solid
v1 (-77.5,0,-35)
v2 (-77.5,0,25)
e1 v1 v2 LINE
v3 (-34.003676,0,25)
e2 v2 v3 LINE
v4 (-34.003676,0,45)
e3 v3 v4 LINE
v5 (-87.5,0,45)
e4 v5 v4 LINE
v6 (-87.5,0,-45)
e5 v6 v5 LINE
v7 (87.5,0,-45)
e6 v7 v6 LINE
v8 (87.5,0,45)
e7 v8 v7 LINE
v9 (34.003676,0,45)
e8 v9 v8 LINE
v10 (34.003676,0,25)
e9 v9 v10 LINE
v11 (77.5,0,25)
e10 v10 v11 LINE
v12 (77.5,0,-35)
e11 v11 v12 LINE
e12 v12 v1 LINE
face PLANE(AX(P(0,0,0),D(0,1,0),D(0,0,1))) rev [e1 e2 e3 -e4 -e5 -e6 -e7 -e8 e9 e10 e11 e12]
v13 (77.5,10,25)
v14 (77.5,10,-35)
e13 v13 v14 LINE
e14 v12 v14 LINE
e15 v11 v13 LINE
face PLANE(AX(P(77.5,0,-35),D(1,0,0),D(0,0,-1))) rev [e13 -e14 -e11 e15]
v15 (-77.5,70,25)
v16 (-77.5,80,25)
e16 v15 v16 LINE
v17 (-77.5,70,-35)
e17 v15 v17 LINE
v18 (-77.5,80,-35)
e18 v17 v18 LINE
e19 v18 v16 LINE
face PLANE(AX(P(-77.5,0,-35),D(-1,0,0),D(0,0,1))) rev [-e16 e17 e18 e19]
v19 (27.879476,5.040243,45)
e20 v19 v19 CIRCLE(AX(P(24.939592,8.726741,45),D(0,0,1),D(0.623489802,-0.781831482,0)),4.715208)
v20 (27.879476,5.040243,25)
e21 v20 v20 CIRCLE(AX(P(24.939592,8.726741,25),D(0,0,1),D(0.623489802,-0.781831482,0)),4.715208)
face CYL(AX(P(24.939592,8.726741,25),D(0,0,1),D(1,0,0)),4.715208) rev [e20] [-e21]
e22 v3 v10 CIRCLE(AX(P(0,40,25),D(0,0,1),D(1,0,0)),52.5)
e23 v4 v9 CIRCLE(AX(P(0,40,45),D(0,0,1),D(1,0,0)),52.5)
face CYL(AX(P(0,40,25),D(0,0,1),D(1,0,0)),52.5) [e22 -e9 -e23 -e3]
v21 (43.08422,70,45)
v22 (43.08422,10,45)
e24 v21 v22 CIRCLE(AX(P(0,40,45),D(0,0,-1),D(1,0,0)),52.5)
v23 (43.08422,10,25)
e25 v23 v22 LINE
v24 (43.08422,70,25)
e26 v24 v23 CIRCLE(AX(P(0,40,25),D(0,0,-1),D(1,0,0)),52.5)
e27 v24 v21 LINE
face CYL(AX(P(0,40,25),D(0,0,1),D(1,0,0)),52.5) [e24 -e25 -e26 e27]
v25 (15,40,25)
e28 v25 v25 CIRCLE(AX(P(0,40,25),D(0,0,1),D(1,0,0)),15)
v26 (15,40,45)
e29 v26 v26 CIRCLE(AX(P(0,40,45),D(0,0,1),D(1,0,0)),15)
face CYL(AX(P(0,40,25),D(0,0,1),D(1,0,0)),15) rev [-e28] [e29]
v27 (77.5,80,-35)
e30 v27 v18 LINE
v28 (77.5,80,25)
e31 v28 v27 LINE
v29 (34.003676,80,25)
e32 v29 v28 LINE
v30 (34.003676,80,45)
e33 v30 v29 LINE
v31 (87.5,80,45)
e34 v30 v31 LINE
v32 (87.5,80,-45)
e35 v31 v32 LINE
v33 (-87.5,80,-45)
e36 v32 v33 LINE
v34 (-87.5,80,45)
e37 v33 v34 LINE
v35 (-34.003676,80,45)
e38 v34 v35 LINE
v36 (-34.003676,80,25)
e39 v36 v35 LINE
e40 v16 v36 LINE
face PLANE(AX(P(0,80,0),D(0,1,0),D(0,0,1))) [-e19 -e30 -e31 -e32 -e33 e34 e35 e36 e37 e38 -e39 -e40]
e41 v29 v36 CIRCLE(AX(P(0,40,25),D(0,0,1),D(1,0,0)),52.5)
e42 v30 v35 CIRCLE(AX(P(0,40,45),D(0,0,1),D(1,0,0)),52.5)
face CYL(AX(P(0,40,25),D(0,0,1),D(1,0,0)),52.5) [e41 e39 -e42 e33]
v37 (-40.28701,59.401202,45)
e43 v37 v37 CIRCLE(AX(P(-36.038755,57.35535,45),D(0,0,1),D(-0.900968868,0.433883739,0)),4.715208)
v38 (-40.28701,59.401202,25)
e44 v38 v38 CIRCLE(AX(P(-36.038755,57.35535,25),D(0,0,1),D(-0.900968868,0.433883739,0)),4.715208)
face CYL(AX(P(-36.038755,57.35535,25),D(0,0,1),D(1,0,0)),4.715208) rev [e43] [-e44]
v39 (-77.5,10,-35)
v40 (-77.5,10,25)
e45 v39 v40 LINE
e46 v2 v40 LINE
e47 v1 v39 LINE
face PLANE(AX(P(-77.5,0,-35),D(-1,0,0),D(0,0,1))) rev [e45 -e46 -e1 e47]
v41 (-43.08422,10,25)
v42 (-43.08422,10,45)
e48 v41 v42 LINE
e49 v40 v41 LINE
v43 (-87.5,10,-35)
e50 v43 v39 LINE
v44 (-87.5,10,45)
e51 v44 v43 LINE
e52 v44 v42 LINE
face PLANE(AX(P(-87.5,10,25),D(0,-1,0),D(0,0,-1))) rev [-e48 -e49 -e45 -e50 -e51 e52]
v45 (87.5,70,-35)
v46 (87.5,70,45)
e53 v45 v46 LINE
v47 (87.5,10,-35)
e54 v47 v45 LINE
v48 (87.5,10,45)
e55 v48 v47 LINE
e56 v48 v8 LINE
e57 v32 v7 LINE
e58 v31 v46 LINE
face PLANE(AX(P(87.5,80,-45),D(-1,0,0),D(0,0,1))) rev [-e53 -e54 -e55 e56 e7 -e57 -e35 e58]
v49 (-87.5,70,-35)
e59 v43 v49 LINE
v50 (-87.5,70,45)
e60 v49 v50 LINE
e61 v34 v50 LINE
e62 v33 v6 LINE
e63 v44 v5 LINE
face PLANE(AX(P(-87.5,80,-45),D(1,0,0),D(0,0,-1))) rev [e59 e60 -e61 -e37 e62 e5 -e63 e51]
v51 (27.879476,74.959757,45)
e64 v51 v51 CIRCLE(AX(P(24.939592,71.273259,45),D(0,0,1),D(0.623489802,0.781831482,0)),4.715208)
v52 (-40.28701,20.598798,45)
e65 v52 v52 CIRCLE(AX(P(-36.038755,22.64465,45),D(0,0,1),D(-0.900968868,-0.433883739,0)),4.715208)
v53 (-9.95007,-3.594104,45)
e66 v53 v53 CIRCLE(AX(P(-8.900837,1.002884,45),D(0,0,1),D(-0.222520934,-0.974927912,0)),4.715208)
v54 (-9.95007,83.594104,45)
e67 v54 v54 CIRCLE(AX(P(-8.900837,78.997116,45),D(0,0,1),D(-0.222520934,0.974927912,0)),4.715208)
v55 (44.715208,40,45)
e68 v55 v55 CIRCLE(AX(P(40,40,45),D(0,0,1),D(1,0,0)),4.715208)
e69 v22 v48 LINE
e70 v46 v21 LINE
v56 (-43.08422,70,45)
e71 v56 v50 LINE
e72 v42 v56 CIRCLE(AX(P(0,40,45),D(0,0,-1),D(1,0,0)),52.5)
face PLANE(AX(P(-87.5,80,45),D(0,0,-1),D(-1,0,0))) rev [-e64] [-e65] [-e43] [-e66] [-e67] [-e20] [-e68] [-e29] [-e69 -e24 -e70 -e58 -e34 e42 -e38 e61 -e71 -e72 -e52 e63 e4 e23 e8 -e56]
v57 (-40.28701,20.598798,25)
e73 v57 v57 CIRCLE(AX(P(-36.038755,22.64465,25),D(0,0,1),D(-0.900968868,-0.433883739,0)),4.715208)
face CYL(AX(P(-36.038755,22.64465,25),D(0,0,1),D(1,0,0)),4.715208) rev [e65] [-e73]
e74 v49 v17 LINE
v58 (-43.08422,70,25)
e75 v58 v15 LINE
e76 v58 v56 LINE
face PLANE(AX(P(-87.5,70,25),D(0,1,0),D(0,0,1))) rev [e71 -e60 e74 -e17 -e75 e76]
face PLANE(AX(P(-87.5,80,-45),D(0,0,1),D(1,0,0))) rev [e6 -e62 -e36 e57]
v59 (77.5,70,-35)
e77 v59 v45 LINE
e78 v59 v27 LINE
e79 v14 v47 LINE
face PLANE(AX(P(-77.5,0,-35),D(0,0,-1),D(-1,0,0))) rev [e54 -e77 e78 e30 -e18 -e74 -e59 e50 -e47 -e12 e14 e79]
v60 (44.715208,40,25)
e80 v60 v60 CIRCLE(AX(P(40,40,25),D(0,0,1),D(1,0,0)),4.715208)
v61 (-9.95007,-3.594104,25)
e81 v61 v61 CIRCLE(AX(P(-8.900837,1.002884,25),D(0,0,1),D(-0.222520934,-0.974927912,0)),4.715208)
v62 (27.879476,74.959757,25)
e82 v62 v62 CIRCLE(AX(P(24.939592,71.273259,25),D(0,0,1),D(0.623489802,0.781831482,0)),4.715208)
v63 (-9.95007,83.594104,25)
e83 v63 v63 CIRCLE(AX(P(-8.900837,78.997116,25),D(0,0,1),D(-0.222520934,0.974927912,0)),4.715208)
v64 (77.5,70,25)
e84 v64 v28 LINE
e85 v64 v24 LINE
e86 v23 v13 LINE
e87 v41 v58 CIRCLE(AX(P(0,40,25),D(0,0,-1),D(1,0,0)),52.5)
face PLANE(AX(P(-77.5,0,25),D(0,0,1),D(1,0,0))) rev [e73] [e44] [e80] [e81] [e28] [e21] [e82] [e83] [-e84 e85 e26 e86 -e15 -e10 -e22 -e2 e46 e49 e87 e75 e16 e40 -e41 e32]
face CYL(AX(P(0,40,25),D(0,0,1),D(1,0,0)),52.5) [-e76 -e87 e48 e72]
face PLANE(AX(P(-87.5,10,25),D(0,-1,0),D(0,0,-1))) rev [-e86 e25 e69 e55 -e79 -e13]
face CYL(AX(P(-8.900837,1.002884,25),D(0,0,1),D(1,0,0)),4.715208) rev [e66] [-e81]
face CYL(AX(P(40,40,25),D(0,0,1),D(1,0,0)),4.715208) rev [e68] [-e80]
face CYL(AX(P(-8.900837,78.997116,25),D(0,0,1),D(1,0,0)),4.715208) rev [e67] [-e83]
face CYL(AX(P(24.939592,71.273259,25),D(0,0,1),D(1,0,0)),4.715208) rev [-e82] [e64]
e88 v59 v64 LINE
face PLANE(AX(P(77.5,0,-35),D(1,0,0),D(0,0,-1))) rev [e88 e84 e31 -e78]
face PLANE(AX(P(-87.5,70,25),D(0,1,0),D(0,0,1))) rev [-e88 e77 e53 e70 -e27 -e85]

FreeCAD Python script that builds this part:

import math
import FreeCAD as App
import Part
import Sketcher

V = App.Vector

doc = App.newDocument("Part")
body = doc.addObject("PartDesign::Body", "Body")

# Sketch on XZ plane
sketch1 = doc.addObject("Sketcher::SketchObject", "Sketch")
body.addObject(sketch1)
sketch1.AttachmentSupport = (doc.XZ_Plane, [""])
sketch1.MapMode = "FlatFace"
sketch1.addGeometry([
    Part.LineSegment(V(-88, -45, 0), V(-88, 45, 0)),
    Part.LineSegment(V(-88, 45, 0), V(88, 45, 0)),
    Part.LineSegment(V(88, 45, 0), V(88, -45, 0)),
    Part.LineSegment(V(88, -45, 0), V(-88, -45, 0)),
], False)
sketch1.addConstraint([
    Sketcher.Constraint("Coincident", 0, 2, 1, 1),
    Sketcher.Constraint("Coincident", 1, 2, 2, 1),
    Sketcher.Constraint("Coincident", 2, 2, 3, 1),
    Sketcher.Constraint("Coincident", 3, 2, 0, 1),
    Sketcher.Constraint("Vertical", 0),
    Sketcher.Constraint("Horizontal", 1),
    Sketcher.Constraint("Vertical", 2),
    Sketcher.Constraint("Horizontal", 3),
    Sketcher.Constraint("Symmetric", 0, 2, 2, 2, -1, 1),
    Sketcher.Constraint("DistanceX", 1, 1, 1, 2, 175.0),
    Sketcher.Constraint("DistanceY", 0, 1, 0, 2, 90.0),
])
pad1 = doc.addObject("PartDesign::Pad", "Pad")
body.addObject(pad1)
pad1.Profile = sketch1
pad1.Length = 80
pad1.Reversed = True

# Sketch on XZ plane
sketch2 = doc.addObject("Sketcher::SketchObject", "Sketch001")
body.addObject(sketch2)
sketch2.AttachmentSupport = (doc.XZ_Plane, [""])
sketch2.MapMode = "FlatFace"
sketch2.AttachmentOffset = App.Placement(V(0, 0, -80), App.Rotation())
sketch2.addGeometry([
    Part.LineSegment(V(-78, -35, 0), V(-78, 25, 0)),
    Part.LineSegment(V(-78, 25, 0), V(78, 25, 0)),
    Part.LineSegment(V(78, 25, 0), V(78, -35, 0)),
    Part.LineSegment(V(78, -35, 0), V(-78, -35, 0)),
], False)
sketch2.addConstraint([
    Sketcher.Constraint("Coincident", 0, 2, 1, 1),
    Sketcher.Constraint("Coincident", 1, 2, 2, 1),
    Sketcher.Constraint("Coincident", 2, 2, 3, 1),
    Sketcher.Constraint("Coincident", 3, 2, 0, 1),
    Sketcher.Constraint("Vertical", 0),
    Sketcher.Constraint("Horizontal", 1),
    Sketcher.Constraint("Vertical", 2),
    Sketcher.Constraint("Horizontal", 3),
    Sketcher.Constraint("DistanceX", 1, 1, 1, 2, 155.0),
    Sketcher.Constraint("DistanceY", 0, 1, 0, 2, 60.0),
    Sketcher.Constraint("DistanceY", -1, 1, 0, 2, 25.0),
    Sketcher.Constraint("DistanceX", 0, 2, -1, 1, 77.5),
])
pocket1 = doc.addObject("PartDesign::Pocket", "Pocket")
body.addObject(pocket1)
pocket1.Profile = sketch2
pocket1.Length = 80
pocket1.Reversed = True

# Sketch on YZ plane
sketch3 = doc.addObject("Sketcher::SketchObject", "Sketch002")
body.addObject(sketch3)
sketch3.AttachmentSupport = (doc.YZ_Plane, [""])
sketch3.MapMode = "FlatFace"
sketch3.AttachmentOffset = App.Placement(V(0, 0, 87.5), App.Rotation())
sketch3.addGeometry([
    Part.LineSegment(V(70, 25, 0), V(10, 25, 0)),
    Part.LineSegment(V(10, 25, 0), V(10, -35, 0)),
    Part.LineSegment(V(10, -35, 0), V(70, -35, 0)),
    Part.LineSegment(V(70, -35, 0), V(70, 25, 0)),
], False)
sketch3.addConstraint([
    Sketcher.Constraint("Coincident", 0, 2, 1, 1),
    Sketcher.Constraint("Coincident", 1, 2, 2, 1),
    Sketcher.Constraint("Coincident", 2, 2, 3, 1),
    Sketcher.Constraint("Coincident", 3, 2, 0, 1),
    Sketcher.Constraint("Horizontal", 0),
    Sketcher.Constraint("Vertical", 1),
    Sketcher.Constraint("Horizontal", 2),
    Sketcher.Constraint("Vertical", 3),
    Sketcher.Constraint("Equal", 2, 1),
    Sketcher.Constraint("DistanceX", 0, 2, 0, 1, 60.0),
    Sketcher.Constraint("DistanceX", -1, 1, 0, 2, 10.0),
    Sketcher.Constraint("DistanceY", -1, 1, 0, 2, 25.0),
])
pocket2 = doc.addObject("PartDesign::Pocket", "Pocket001")
body.addObject(pocket2)
pocket2.Profile = sketch3
pocket2.Type = "ThroughAll"

# Sketch on XY plane
sketch4 = doc.addObject("Sketcher::SketchObject", "Sketch003")
body.addObject(sketch4)
sketch4.AttachmentSupport = (doc.XY_Plane, [""])
sketch4.MapMode = "FlatFace"
sketch4.AttachmentOffset = App.Placement(V(0, 0, 45), App.Rotation())
sketch4.addGeometry(Part.Circle(V(0, 40, 0), V(0, 0, 1), 52), False)
sketch4.addConstraint([
    Sketcher.Constraint("PointOnObject", 0, 3, -2),
    Sketcher.Constraint("Diameter", 0, 105.0),
    Sketcher.Constraint("DistanceY", -1, 1, 0, 3, 40.0),
])
pad2 = doc.addObject("PartDesign::Pad", "Pad001")
body.addObject(pad2)
pad2.Profile = sketch4
pad2.Length = 20
pad2.Reversed = True

# Sketch on XY plane
sketch5 = doc.addObject("Sketcher::SketchObject", "Sketch004")
body.addObject(sketch5)
sketch5.AttachmentSupport = (doc.XY_Plane, [""])
sketch5.MapMode = "FlatFace"
sketch5.AttachmentOffset = App.Placement(V(0, 0, 45), App.Rotation())
sketch5.addGeometry([
    Part.LineSegment(V(88, 70, 0), V(43, 70, 0)),  # 0
    Part.ArcOfCircle(Part.Circle(V(0, 40, 0), V(0, 0, 1), 52), math.radians(-35), math.radians(35)),  # 1
    Part.LineSegment(V(43, 10, 0), V(88, 10, 0)),  # 2
    Part.LineSegment(V(88, 10, 0), V(88, 70, 0)),  # 3
    Part.LineSegment(V(-43, 70, 0), V(-88, 70, 0)),  # 4
    Part.LineSegment(V(-88, 70, 0), V(-88, 10, 0)),  # 5
    Part.LineSegment(V(-88, 10, 0), V(-43, 10, 0)),  # 6
    Part.ArcOfCircle(Part.Circle(V(0, 40, 0), V(0, 0, 1), 52), math.radians(145), math.radians(215)),  # 7
], False)
sketch5.addConstraint([
    Sketcher.Constraint("Coincident", 0, 2, 1, 2),
    Sketcher.Constraint("Coincident", 1, 1, 2, 1),
    Sketcher.Constraint("Coincident", 2, 2, 3, 1),
    Sketcher.Constraint("Coincident", 3, 2, 0, 1),
    Sketcher.Constraint("Coincident", 4, 2, 5, 1),
    Sketcher.Constraint("Coincident", 5, 2, 6, 1),
    Sketcher.Constraint("Coincident", 6, 2, 7, 2),
    Sketcher.Constraint("Coincident", 7, 1, 4, 1),
    Sketcher.Constraint("Horizontal", 0),
    Sketcher.Constraint("Horizontal", 2),
    Sketcher.Constraint("Vertical", 3),
    Sketcher.Constraint("Horizontal", 4),
    Sketcher.Constraint("Vertical", 5),
    Sketcher.Constraint("Horizontal", 6),
    Sketcher.Constraint("Coincident", 7, 3, 1, 3),
    Sketcher.Constraint("Equal", 1, 7),
    Sketcher.Constraint("Symmetric", 3, 2, 4, 2, -2),
    Sketcher.Constraint("Symmetric", 1, 1, 6, 2, -2),
    Sketcher.Constraint("Vertical", 0, 2, 1, 1),
    Sketcher.Constraint("Radius", 1, 52.5),
    Sketcher.Constraint("DistanceY", 3, 1, 3, 2, 60.0),
    Sketcher.Constraint("DistanceY", -1, 1, 1, 3, 40.0),
    Sketcher.Constraint("DistanceX", 4, 2, 3, 2, 175.0),
])
pocket3 = doc.addObject("PartDesign::Pocket", "Pocket002")
body.addObject(pocket3)
pocket3.Profile = sketch5
pocket3.Length = 20

# Sketch on XY plane
sketch6 = doc.addObject("Sketcher::SketchObject", "Sketch005")
body.addObject(sketch6)
sketch6.AttachmentSupport = (doc.XY_Plane, [""])
sketch6.MapMode = "FlatFace"
sketch6.AttachmentOffset = App.Placement(V(0, 0, 45), App.Rotation())
sketch6.addGeometry(Part.Circle(V(40, 40, 0), V(0, 0, 1), 4.7), False)
sketch6.addConstraint([
    Sketcher.Constraint("DistanceX", -1, 1, 0, 3, 40.0),
    Sketcher.Constraint("DistanceY", -1, 1, 0, 3, 40.0),
    Sketcher.Constraint("Diameter", 0, 9.430416),
])
pocket4 = doc.addObject("PartDesign::Pocket", "Pocket003")
body.addObject(pocket4)
pocket4.Profile = sketch6
pocket4.Length = 20
doc.recompute()

datumline = doc.addObject("PartDesign::Line", "DatumLine")
body.addObject(datumline)
datumline.Placement = App.Placement(V(0, 40, 0), App.Rotation(V(0, 0, 1), V(0, 0, 1)))
polarpattern = doc.addObject("PartDesign::PolarPattern", "PolarPattern")
body.addObject(polarpattern)
polarpattern.Originals = [pocket4]
polarpattern.Axis = (datumline, [""])
polarpattern.Angle = 360
polarpattern.Occurrences = 7
body.Tip = polarpattern

# Sketch on XY plane
sketch7 = doc.addObject("Sketcher::SketchObject", "Sketch006")
body.addObject(sketch7)
sketch7.AttachmentSupport = (doc.XY_Plane, [""])
sketch7.MapMode = "FlatFace"
sketch7.AttachmentOffset = App.Placement(V(0, 0, 45), App.Rotation())
sketch7.addGeometry(Part.Circle(V(0, 40, 0), V(0, 0, 1), 15), False)
sketch7.addConstraint([
    Sketcher.Constraint("PointOnObject", 0, 3, -2),
    Sketcher.Constraint("Diameter", 0, 30.0),
    Sketcher.Constraint("DistanceY", -1, 1, 0, 3, 40.0),
])
pocket5 = doc.addObject("PartDesign::Pocket", "Pocket004")
body.addObject(pocket5)
pocket5.Profile = sketch7
pocket5.Length = 20

doc.recompute()
